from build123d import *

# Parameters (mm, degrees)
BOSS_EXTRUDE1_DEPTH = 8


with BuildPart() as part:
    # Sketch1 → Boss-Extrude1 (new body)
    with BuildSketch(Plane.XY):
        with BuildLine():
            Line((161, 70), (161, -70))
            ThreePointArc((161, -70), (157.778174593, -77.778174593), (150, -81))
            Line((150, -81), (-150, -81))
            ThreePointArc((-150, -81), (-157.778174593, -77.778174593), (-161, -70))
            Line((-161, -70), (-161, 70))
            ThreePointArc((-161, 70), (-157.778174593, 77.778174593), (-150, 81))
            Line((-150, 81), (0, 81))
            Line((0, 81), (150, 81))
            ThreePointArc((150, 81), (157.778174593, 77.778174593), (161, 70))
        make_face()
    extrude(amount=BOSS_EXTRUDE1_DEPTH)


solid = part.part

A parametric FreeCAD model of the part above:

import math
import FreeCAD as App
import Part
import Sketcher
from FreeCAD import Vector
Q = App.Units.Quantity

doc = App.newDocument("Part")
body = doc.addObject("PartDesign::Body", "Body")

# Sketch on XY plane
sketch1 = body.newObject("Sketcher::SketchObject", "Sketch")
sketch1.AttachmentSupport = (doc.getObject("XY_Plane"), [""])
sketch1.MapMode = "FlatFace"
sketch1.addGeometry([
    Part.LineSegment(Vector(161, -70, 0), Vector(161, 70, 0)),  # 0
    Part.ArcOfCircle(Part.Circle(Vector(150, 70, 0), Vector(0, 0, 1), 11), math.radians(0), math.radians(90)),  # 1
    Part.LineSegment(Vector(150, 81, 0), Vector(-150, 81, 0)),  # 2
    Part.ArcOfCircle(Part.Circle(Vector(-150, 70, 0), Vector(0, 0, 1), 11), math.radians(90), math.radians(180)),  # 3
    Part.LineSegment(Vector(-161, 70, 0), Vector(-161, -70, 0)),  # 4
    Part.ArcOfCircle(Part.Circle(Vector(-150, -70, 0), Vector(0, 0, 1), 11), math.radians(180), math.radians(270)),  # 5
    Part.LineSegment(Vector(-150, -81, 0), Vector(150, -81, 0)),  # 6
    Part.ArcOfCircle(Part.Circle(Vector(150, -70, 0), Vector(0, 0, 1), 11), math.radians(-90), math.radians(0)),  # 7
], False)
sketch1.addConstraint([
    Sketcher.Constraint("Tangent", 0, 2, 1, 1),
    Sketcher.Constraint("Tangent", 1, 2, 2, 1),
    Sketcher.Constraint("Tangent", 2, 2, 3, 1),
    Sketcher.Constraint("Tangent", 3, 2, 4, 1),
    Sketcher.Constraint("Tangent", 4, 2, 5, 1),
    Sketcher.Constraint("Tangent", 5, 2, 6, 1),
    Sketcher.Constraint("Tangent", 6, 2, 7, 1),
    Sketcher.Constraint("Tangent", 7, 2, 0, 1),
    Sketcher.Constraint("Vertical", 0),
    Sketcher.Constraint("Horizontal", 2),
    Sketcher.Constraint("Vertical", 4),
    Sketcher.Constraint("Horizontal", 6),
    Sketcher.Constraint("Equal", 1, 3),
    Sketcher.Constraint("Equal", 3, 5),
    Sketcher.Constraint("Equal", 5, 7),
    Sketcher.Constraint("Symmetric", 1, 3, 5, 3, -1, 1),
    Sketcher.Constraint("Radius", 1, Q("11 mm")),
    Sketcher.Constraint("DistanceX", 2, 2, 2, 1, Q("300 mm")),
    Sketcher.Constraint("DistanceY", 0, 1, 0, 2, Q("140 mm")),
])
pad1 = body.newObject("PartDesign::Pad", "Pad")
pad1.Profile = sketch1
pad1.Length = 8

doc.recompute()
